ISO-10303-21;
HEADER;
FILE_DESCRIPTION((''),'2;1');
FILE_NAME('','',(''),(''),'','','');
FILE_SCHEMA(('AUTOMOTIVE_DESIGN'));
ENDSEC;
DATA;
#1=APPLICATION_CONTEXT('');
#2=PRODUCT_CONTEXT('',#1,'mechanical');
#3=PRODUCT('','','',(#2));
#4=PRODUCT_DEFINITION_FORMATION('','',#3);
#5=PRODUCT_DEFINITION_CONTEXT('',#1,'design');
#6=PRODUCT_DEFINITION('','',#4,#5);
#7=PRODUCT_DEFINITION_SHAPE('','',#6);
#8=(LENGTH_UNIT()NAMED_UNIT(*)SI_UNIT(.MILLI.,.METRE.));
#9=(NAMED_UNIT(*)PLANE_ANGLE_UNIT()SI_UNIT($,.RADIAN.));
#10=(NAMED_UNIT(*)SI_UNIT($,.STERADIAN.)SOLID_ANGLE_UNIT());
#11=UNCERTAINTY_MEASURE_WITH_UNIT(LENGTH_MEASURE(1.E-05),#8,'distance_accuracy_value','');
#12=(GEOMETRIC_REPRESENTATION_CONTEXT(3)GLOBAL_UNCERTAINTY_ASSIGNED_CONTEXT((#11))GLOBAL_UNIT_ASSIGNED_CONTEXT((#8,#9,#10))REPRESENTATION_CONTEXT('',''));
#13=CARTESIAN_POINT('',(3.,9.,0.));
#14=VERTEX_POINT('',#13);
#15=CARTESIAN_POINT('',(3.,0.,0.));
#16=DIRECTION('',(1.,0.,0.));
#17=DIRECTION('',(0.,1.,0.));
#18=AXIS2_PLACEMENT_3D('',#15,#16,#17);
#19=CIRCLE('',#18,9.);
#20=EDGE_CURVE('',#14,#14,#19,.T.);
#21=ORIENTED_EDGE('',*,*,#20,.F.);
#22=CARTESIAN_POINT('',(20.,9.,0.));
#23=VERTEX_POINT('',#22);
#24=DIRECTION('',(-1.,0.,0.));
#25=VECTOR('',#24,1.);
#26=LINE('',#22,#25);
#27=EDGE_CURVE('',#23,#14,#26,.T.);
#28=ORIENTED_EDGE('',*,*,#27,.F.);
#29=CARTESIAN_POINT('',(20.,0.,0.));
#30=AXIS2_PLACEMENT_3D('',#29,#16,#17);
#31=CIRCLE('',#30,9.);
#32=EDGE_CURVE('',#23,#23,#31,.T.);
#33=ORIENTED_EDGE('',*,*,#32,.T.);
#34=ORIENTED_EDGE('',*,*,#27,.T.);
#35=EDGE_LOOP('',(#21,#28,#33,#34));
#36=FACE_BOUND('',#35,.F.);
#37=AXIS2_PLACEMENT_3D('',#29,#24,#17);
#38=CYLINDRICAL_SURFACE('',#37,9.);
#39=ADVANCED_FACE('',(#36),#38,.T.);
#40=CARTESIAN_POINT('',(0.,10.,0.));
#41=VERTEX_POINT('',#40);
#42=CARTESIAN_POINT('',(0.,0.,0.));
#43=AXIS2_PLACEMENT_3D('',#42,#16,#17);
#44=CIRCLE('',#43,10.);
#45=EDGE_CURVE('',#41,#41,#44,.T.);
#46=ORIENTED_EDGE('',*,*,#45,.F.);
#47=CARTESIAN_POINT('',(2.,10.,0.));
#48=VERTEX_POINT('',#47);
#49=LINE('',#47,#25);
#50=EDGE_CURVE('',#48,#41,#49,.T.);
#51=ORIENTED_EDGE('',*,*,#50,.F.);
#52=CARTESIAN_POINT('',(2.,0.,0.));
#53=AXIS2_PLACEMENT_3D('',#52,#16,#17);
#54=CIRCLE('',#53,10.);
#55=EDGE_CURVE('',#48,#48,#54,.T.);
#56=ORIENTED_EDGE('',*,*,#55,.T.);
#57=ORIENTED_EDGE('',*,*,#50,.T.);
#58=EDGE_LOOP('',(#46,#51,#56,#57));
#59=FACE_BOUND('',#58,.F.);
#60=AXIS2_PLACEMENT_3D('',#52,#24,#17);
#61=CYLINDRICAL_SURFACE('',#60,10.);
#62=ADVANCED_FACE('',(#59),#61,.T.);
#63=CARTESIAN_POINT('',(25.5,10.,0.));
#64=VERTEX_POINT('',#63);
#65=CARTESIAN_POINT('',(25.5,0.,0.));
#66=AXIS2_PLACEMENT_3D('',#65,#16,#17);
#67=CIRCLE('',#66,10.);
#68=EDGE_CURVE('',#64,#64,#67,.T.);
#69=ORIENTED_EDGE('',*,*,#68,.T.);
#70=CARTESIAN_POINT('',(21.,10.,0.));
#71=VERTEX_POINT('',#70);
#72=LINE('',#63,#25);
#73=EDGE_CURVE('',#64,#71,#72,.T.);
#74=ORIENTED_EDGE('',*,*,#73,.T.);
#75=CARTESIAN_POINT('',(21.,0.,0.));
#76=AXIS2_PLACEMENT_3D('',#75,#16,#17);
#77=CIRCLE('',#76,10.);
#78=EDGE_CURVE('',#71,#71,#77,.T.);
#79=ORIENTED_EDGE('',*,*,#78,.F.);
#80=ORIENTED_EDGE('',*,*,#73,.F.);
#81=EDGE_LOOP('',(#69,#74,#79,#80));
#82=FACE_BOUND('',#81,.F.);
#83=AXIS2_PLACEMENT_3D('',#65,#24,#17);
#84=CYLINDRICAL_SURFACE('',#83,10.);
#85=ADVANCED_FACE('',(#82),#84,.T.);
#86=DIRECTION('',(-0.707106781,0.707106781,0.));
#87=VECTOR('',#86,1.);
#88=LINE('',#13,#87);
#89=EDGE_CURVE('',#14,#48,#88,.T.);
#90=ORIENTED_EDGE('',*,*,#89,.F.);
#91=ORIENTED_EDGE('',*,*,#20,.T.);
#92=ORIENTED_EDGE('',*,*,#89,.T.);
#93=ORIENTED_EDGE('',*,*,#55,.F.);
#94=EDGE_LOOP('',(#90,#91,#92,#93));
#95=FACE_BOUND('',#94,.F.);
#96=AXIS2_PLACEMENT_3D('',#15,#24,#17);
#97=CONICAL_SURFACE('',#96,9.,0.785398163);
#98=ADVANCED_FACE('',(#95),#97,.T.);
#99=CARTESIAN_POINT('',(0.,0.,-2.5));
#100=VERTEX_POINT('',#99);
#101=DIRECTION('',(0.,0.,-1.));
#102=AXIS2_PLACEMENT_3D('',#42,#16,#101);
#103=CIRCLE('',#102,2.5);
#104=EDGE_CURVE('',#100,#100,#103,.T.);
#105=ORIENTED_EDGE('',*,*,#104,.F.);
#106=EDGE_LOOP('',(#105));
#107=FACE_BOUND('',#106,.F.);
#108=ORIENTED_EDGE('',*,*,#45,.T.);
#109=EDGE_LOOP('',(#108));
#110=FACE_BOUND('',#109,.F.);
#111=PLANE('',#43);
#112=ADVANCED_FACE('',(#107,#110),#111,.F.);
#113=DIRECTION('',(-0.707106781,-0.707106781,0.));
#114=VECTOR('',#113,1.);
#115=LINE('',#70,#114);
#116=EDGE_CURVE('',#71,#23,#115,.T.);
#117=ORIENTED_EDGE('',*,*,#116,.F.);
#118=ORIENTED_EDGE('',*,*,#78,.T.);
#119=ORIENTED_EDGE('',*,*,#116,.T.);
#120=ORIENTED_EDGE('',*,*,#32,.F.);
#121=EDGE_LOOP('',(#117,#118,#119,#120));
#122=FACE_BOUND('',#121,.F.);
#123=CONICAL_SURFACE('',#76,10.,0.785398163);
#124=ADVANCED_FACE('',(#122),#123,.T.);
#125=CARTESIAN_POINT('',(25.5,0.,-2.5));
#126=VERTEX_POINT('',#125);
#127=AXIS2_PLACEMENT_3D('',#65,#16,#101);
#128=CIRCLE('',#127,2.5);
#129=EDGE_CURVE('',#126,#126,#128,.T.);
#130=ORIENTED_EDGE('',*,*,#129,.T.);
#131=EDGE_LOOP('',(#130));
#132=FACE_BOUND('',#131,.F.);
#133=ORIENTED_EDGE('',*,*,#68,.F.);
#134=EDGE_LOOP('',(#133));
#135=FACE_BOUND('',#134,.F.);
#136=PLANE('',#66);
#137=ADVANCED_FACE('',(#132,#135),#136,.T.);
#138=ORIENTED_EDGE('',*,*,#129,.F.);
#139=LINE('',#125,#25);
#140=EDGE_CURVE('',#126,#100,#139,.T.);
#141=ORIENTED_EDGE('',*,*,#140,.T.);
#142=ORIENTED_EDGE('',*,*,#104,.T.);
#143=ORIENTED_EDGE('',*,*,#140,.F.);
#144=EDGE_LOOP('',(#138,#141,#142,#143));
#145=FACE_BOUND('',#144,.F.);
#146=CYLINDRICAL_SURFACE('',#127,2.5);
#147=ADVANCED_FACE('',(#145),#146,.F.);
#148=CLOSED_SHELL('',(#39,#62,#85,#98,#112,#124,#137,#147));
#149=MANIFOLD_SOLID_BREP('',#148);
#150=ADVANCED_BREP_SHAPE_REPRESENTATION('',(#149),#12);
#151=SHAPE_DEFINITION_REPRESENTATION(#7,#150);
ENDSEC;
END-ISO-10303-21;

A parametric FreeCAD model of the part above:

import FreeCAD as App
import Part
import Sketcher
Q = App.Units.Quantity


def add_polygon(sketch, points):
    """Adds a closed chain of lines whose ends are joined by coincident constraints."""
    first, n = sketch.GeometryCount, len(points)
    for a, b in zip(points, points[1:] + points[:1]):
        sketch.addGeometry(Part.LineSegment(App.Vector(*a, 0), App.Vector(*b, 0)), False)
    for i in range(n):
        sketch.addConstraint(Sketcher.Constraint("Coincident", first + i, 2, first + (i + 1) % n, 1))

doc = App.newDocument("Part")
params = doc.addObject("Spreadsheet::Sheet", "Params")
for row, (alias, value) in enumerate([
    ("sketch1_width", "17 mm"),
    ("sketch1_width2", "2 mm"),
    ("sketch1_width3", "25.5 mm"),
    ("revolution_angle", "360 deg"),
    ("sketch2_diameter", "5 mm"),
], start=1):
    params.set(f"A{row}", alias)
    params.set(f"B{row}", "=" + value)
    params.setAlias(f"B{row}", alias)

body = doc.addObject("PartDesign::Body", "Body")

sketch1 = doc.addObject("Sketcher::SketchObject", "Sketch")
body.addObject(sketch1)
sketch1.AttachmentSupport = (doc.XY_Plane, [""])
sketch1.MapMode = "FlatFace"
add_polygon(sketch1, [(0, 10), (0, 0), (25.5, 0), (25.5, 10), (21, 10), (20, 9), (3, 9), (2, 10)])
sketch1.addConstraint(Sketcher.Constraint("Vertical", 0))
sketch1.addConstraint(Sketcher.Constraint("Horizontal", 1))
sketch1.addConstraint(Sketcher.Constraint("Vertical", 2))
sketch1.addConstraint(Sketcher.Constraint("Horizontal", 3))
sketch1.addConstraint(Sketcher.Constraint("Horizontal", 5))
sketch1.addConstraint(Sketcher.Constraint("Horizontal", 7))
sketch1.addConstraint(Sketcher.Constraint("Coincident", 0, 2, -1, 1))
sketch1.addConstraint(Sketcher.Constraint("Perpendicular", 4, 6))
sketch1.addConstraint(Sketcher.Constraint("Horizontal", 3, 2, 6, 2))
sketch1.addConstraint(Sketcher.Constraint("Equal", 4, 6))
sketch1.addConstraint(Sketcher.Constraint("DistanceX", 5, 2, 5, 1, Q("17 mm")))
sketch1.addConstraint(Sketcher.Constraint("DistanceX", 7, 2, 7, 1, Q("2 mm")))
sketch1.addConstraint(Sketcher.Constraint("DistanceX", 1, 1, 1, 2, Q("25.5 mm")))
sketch1.addConstraint(Sketcher.Constraint("DistanceY", -1, 1, 4, 2, Q("9 mm")))
sketch1.addConstraint(Sketcher.Constraint("DistanceX", 4, 2, 3, 2, Q("1 mm")))
sketch1.setExpression("Constraints[18]", "Params.sketch1_width")
sketch1.setExpression("Constraints[19]", "Params.sketch1_width2")
sketch1.setExpression("Constraints[20]", "Params.sketch1_width3")
revolution = doc.addObject("PartDesign::Revolution", "Revolution")
body.addObject(revolution)
revolution.Profile = sketch1
revolution.ReferenceAxis = (sketch1, ["H_Axis"])
revolution.setExpression("Angle", "Params.revolution_angle")

sketch2 = doc.addObject("Sketcher::SketchObject", "Sketch001")
body.addObject(sketch2)
sketch2.AttachmentSupport = (doc.YZ_Plane, [""])
sketch2.MapMode = "FlatFace"
sketch2.AttachmentOffset = App.Placement(App.Vector(0, 0, 25.5), App.Rotation())
sketch2.addGeometry(Part.Circle(App.Vector(0, 0, 0), App.Vector(0, 0, 1), 2.5), False)
sketch2.addConstraint(Sketcher.Constraint("Coincident", 0, 3, -1, 1))
sketch2.addConstraint(Sketcher.Constraint("Diameter", 0, Q("5 mm")))
sketch2.setExpression("Constraints[1]", "Params.sketch2_diameter")
pocket1 = doc.addObject("PartDesign::Pocket", "Pocket")
body.addObject(pocket1)
pocket1.Profile = sketch2
pocket1.Type = "ThroughAll"

doc.recompute()
